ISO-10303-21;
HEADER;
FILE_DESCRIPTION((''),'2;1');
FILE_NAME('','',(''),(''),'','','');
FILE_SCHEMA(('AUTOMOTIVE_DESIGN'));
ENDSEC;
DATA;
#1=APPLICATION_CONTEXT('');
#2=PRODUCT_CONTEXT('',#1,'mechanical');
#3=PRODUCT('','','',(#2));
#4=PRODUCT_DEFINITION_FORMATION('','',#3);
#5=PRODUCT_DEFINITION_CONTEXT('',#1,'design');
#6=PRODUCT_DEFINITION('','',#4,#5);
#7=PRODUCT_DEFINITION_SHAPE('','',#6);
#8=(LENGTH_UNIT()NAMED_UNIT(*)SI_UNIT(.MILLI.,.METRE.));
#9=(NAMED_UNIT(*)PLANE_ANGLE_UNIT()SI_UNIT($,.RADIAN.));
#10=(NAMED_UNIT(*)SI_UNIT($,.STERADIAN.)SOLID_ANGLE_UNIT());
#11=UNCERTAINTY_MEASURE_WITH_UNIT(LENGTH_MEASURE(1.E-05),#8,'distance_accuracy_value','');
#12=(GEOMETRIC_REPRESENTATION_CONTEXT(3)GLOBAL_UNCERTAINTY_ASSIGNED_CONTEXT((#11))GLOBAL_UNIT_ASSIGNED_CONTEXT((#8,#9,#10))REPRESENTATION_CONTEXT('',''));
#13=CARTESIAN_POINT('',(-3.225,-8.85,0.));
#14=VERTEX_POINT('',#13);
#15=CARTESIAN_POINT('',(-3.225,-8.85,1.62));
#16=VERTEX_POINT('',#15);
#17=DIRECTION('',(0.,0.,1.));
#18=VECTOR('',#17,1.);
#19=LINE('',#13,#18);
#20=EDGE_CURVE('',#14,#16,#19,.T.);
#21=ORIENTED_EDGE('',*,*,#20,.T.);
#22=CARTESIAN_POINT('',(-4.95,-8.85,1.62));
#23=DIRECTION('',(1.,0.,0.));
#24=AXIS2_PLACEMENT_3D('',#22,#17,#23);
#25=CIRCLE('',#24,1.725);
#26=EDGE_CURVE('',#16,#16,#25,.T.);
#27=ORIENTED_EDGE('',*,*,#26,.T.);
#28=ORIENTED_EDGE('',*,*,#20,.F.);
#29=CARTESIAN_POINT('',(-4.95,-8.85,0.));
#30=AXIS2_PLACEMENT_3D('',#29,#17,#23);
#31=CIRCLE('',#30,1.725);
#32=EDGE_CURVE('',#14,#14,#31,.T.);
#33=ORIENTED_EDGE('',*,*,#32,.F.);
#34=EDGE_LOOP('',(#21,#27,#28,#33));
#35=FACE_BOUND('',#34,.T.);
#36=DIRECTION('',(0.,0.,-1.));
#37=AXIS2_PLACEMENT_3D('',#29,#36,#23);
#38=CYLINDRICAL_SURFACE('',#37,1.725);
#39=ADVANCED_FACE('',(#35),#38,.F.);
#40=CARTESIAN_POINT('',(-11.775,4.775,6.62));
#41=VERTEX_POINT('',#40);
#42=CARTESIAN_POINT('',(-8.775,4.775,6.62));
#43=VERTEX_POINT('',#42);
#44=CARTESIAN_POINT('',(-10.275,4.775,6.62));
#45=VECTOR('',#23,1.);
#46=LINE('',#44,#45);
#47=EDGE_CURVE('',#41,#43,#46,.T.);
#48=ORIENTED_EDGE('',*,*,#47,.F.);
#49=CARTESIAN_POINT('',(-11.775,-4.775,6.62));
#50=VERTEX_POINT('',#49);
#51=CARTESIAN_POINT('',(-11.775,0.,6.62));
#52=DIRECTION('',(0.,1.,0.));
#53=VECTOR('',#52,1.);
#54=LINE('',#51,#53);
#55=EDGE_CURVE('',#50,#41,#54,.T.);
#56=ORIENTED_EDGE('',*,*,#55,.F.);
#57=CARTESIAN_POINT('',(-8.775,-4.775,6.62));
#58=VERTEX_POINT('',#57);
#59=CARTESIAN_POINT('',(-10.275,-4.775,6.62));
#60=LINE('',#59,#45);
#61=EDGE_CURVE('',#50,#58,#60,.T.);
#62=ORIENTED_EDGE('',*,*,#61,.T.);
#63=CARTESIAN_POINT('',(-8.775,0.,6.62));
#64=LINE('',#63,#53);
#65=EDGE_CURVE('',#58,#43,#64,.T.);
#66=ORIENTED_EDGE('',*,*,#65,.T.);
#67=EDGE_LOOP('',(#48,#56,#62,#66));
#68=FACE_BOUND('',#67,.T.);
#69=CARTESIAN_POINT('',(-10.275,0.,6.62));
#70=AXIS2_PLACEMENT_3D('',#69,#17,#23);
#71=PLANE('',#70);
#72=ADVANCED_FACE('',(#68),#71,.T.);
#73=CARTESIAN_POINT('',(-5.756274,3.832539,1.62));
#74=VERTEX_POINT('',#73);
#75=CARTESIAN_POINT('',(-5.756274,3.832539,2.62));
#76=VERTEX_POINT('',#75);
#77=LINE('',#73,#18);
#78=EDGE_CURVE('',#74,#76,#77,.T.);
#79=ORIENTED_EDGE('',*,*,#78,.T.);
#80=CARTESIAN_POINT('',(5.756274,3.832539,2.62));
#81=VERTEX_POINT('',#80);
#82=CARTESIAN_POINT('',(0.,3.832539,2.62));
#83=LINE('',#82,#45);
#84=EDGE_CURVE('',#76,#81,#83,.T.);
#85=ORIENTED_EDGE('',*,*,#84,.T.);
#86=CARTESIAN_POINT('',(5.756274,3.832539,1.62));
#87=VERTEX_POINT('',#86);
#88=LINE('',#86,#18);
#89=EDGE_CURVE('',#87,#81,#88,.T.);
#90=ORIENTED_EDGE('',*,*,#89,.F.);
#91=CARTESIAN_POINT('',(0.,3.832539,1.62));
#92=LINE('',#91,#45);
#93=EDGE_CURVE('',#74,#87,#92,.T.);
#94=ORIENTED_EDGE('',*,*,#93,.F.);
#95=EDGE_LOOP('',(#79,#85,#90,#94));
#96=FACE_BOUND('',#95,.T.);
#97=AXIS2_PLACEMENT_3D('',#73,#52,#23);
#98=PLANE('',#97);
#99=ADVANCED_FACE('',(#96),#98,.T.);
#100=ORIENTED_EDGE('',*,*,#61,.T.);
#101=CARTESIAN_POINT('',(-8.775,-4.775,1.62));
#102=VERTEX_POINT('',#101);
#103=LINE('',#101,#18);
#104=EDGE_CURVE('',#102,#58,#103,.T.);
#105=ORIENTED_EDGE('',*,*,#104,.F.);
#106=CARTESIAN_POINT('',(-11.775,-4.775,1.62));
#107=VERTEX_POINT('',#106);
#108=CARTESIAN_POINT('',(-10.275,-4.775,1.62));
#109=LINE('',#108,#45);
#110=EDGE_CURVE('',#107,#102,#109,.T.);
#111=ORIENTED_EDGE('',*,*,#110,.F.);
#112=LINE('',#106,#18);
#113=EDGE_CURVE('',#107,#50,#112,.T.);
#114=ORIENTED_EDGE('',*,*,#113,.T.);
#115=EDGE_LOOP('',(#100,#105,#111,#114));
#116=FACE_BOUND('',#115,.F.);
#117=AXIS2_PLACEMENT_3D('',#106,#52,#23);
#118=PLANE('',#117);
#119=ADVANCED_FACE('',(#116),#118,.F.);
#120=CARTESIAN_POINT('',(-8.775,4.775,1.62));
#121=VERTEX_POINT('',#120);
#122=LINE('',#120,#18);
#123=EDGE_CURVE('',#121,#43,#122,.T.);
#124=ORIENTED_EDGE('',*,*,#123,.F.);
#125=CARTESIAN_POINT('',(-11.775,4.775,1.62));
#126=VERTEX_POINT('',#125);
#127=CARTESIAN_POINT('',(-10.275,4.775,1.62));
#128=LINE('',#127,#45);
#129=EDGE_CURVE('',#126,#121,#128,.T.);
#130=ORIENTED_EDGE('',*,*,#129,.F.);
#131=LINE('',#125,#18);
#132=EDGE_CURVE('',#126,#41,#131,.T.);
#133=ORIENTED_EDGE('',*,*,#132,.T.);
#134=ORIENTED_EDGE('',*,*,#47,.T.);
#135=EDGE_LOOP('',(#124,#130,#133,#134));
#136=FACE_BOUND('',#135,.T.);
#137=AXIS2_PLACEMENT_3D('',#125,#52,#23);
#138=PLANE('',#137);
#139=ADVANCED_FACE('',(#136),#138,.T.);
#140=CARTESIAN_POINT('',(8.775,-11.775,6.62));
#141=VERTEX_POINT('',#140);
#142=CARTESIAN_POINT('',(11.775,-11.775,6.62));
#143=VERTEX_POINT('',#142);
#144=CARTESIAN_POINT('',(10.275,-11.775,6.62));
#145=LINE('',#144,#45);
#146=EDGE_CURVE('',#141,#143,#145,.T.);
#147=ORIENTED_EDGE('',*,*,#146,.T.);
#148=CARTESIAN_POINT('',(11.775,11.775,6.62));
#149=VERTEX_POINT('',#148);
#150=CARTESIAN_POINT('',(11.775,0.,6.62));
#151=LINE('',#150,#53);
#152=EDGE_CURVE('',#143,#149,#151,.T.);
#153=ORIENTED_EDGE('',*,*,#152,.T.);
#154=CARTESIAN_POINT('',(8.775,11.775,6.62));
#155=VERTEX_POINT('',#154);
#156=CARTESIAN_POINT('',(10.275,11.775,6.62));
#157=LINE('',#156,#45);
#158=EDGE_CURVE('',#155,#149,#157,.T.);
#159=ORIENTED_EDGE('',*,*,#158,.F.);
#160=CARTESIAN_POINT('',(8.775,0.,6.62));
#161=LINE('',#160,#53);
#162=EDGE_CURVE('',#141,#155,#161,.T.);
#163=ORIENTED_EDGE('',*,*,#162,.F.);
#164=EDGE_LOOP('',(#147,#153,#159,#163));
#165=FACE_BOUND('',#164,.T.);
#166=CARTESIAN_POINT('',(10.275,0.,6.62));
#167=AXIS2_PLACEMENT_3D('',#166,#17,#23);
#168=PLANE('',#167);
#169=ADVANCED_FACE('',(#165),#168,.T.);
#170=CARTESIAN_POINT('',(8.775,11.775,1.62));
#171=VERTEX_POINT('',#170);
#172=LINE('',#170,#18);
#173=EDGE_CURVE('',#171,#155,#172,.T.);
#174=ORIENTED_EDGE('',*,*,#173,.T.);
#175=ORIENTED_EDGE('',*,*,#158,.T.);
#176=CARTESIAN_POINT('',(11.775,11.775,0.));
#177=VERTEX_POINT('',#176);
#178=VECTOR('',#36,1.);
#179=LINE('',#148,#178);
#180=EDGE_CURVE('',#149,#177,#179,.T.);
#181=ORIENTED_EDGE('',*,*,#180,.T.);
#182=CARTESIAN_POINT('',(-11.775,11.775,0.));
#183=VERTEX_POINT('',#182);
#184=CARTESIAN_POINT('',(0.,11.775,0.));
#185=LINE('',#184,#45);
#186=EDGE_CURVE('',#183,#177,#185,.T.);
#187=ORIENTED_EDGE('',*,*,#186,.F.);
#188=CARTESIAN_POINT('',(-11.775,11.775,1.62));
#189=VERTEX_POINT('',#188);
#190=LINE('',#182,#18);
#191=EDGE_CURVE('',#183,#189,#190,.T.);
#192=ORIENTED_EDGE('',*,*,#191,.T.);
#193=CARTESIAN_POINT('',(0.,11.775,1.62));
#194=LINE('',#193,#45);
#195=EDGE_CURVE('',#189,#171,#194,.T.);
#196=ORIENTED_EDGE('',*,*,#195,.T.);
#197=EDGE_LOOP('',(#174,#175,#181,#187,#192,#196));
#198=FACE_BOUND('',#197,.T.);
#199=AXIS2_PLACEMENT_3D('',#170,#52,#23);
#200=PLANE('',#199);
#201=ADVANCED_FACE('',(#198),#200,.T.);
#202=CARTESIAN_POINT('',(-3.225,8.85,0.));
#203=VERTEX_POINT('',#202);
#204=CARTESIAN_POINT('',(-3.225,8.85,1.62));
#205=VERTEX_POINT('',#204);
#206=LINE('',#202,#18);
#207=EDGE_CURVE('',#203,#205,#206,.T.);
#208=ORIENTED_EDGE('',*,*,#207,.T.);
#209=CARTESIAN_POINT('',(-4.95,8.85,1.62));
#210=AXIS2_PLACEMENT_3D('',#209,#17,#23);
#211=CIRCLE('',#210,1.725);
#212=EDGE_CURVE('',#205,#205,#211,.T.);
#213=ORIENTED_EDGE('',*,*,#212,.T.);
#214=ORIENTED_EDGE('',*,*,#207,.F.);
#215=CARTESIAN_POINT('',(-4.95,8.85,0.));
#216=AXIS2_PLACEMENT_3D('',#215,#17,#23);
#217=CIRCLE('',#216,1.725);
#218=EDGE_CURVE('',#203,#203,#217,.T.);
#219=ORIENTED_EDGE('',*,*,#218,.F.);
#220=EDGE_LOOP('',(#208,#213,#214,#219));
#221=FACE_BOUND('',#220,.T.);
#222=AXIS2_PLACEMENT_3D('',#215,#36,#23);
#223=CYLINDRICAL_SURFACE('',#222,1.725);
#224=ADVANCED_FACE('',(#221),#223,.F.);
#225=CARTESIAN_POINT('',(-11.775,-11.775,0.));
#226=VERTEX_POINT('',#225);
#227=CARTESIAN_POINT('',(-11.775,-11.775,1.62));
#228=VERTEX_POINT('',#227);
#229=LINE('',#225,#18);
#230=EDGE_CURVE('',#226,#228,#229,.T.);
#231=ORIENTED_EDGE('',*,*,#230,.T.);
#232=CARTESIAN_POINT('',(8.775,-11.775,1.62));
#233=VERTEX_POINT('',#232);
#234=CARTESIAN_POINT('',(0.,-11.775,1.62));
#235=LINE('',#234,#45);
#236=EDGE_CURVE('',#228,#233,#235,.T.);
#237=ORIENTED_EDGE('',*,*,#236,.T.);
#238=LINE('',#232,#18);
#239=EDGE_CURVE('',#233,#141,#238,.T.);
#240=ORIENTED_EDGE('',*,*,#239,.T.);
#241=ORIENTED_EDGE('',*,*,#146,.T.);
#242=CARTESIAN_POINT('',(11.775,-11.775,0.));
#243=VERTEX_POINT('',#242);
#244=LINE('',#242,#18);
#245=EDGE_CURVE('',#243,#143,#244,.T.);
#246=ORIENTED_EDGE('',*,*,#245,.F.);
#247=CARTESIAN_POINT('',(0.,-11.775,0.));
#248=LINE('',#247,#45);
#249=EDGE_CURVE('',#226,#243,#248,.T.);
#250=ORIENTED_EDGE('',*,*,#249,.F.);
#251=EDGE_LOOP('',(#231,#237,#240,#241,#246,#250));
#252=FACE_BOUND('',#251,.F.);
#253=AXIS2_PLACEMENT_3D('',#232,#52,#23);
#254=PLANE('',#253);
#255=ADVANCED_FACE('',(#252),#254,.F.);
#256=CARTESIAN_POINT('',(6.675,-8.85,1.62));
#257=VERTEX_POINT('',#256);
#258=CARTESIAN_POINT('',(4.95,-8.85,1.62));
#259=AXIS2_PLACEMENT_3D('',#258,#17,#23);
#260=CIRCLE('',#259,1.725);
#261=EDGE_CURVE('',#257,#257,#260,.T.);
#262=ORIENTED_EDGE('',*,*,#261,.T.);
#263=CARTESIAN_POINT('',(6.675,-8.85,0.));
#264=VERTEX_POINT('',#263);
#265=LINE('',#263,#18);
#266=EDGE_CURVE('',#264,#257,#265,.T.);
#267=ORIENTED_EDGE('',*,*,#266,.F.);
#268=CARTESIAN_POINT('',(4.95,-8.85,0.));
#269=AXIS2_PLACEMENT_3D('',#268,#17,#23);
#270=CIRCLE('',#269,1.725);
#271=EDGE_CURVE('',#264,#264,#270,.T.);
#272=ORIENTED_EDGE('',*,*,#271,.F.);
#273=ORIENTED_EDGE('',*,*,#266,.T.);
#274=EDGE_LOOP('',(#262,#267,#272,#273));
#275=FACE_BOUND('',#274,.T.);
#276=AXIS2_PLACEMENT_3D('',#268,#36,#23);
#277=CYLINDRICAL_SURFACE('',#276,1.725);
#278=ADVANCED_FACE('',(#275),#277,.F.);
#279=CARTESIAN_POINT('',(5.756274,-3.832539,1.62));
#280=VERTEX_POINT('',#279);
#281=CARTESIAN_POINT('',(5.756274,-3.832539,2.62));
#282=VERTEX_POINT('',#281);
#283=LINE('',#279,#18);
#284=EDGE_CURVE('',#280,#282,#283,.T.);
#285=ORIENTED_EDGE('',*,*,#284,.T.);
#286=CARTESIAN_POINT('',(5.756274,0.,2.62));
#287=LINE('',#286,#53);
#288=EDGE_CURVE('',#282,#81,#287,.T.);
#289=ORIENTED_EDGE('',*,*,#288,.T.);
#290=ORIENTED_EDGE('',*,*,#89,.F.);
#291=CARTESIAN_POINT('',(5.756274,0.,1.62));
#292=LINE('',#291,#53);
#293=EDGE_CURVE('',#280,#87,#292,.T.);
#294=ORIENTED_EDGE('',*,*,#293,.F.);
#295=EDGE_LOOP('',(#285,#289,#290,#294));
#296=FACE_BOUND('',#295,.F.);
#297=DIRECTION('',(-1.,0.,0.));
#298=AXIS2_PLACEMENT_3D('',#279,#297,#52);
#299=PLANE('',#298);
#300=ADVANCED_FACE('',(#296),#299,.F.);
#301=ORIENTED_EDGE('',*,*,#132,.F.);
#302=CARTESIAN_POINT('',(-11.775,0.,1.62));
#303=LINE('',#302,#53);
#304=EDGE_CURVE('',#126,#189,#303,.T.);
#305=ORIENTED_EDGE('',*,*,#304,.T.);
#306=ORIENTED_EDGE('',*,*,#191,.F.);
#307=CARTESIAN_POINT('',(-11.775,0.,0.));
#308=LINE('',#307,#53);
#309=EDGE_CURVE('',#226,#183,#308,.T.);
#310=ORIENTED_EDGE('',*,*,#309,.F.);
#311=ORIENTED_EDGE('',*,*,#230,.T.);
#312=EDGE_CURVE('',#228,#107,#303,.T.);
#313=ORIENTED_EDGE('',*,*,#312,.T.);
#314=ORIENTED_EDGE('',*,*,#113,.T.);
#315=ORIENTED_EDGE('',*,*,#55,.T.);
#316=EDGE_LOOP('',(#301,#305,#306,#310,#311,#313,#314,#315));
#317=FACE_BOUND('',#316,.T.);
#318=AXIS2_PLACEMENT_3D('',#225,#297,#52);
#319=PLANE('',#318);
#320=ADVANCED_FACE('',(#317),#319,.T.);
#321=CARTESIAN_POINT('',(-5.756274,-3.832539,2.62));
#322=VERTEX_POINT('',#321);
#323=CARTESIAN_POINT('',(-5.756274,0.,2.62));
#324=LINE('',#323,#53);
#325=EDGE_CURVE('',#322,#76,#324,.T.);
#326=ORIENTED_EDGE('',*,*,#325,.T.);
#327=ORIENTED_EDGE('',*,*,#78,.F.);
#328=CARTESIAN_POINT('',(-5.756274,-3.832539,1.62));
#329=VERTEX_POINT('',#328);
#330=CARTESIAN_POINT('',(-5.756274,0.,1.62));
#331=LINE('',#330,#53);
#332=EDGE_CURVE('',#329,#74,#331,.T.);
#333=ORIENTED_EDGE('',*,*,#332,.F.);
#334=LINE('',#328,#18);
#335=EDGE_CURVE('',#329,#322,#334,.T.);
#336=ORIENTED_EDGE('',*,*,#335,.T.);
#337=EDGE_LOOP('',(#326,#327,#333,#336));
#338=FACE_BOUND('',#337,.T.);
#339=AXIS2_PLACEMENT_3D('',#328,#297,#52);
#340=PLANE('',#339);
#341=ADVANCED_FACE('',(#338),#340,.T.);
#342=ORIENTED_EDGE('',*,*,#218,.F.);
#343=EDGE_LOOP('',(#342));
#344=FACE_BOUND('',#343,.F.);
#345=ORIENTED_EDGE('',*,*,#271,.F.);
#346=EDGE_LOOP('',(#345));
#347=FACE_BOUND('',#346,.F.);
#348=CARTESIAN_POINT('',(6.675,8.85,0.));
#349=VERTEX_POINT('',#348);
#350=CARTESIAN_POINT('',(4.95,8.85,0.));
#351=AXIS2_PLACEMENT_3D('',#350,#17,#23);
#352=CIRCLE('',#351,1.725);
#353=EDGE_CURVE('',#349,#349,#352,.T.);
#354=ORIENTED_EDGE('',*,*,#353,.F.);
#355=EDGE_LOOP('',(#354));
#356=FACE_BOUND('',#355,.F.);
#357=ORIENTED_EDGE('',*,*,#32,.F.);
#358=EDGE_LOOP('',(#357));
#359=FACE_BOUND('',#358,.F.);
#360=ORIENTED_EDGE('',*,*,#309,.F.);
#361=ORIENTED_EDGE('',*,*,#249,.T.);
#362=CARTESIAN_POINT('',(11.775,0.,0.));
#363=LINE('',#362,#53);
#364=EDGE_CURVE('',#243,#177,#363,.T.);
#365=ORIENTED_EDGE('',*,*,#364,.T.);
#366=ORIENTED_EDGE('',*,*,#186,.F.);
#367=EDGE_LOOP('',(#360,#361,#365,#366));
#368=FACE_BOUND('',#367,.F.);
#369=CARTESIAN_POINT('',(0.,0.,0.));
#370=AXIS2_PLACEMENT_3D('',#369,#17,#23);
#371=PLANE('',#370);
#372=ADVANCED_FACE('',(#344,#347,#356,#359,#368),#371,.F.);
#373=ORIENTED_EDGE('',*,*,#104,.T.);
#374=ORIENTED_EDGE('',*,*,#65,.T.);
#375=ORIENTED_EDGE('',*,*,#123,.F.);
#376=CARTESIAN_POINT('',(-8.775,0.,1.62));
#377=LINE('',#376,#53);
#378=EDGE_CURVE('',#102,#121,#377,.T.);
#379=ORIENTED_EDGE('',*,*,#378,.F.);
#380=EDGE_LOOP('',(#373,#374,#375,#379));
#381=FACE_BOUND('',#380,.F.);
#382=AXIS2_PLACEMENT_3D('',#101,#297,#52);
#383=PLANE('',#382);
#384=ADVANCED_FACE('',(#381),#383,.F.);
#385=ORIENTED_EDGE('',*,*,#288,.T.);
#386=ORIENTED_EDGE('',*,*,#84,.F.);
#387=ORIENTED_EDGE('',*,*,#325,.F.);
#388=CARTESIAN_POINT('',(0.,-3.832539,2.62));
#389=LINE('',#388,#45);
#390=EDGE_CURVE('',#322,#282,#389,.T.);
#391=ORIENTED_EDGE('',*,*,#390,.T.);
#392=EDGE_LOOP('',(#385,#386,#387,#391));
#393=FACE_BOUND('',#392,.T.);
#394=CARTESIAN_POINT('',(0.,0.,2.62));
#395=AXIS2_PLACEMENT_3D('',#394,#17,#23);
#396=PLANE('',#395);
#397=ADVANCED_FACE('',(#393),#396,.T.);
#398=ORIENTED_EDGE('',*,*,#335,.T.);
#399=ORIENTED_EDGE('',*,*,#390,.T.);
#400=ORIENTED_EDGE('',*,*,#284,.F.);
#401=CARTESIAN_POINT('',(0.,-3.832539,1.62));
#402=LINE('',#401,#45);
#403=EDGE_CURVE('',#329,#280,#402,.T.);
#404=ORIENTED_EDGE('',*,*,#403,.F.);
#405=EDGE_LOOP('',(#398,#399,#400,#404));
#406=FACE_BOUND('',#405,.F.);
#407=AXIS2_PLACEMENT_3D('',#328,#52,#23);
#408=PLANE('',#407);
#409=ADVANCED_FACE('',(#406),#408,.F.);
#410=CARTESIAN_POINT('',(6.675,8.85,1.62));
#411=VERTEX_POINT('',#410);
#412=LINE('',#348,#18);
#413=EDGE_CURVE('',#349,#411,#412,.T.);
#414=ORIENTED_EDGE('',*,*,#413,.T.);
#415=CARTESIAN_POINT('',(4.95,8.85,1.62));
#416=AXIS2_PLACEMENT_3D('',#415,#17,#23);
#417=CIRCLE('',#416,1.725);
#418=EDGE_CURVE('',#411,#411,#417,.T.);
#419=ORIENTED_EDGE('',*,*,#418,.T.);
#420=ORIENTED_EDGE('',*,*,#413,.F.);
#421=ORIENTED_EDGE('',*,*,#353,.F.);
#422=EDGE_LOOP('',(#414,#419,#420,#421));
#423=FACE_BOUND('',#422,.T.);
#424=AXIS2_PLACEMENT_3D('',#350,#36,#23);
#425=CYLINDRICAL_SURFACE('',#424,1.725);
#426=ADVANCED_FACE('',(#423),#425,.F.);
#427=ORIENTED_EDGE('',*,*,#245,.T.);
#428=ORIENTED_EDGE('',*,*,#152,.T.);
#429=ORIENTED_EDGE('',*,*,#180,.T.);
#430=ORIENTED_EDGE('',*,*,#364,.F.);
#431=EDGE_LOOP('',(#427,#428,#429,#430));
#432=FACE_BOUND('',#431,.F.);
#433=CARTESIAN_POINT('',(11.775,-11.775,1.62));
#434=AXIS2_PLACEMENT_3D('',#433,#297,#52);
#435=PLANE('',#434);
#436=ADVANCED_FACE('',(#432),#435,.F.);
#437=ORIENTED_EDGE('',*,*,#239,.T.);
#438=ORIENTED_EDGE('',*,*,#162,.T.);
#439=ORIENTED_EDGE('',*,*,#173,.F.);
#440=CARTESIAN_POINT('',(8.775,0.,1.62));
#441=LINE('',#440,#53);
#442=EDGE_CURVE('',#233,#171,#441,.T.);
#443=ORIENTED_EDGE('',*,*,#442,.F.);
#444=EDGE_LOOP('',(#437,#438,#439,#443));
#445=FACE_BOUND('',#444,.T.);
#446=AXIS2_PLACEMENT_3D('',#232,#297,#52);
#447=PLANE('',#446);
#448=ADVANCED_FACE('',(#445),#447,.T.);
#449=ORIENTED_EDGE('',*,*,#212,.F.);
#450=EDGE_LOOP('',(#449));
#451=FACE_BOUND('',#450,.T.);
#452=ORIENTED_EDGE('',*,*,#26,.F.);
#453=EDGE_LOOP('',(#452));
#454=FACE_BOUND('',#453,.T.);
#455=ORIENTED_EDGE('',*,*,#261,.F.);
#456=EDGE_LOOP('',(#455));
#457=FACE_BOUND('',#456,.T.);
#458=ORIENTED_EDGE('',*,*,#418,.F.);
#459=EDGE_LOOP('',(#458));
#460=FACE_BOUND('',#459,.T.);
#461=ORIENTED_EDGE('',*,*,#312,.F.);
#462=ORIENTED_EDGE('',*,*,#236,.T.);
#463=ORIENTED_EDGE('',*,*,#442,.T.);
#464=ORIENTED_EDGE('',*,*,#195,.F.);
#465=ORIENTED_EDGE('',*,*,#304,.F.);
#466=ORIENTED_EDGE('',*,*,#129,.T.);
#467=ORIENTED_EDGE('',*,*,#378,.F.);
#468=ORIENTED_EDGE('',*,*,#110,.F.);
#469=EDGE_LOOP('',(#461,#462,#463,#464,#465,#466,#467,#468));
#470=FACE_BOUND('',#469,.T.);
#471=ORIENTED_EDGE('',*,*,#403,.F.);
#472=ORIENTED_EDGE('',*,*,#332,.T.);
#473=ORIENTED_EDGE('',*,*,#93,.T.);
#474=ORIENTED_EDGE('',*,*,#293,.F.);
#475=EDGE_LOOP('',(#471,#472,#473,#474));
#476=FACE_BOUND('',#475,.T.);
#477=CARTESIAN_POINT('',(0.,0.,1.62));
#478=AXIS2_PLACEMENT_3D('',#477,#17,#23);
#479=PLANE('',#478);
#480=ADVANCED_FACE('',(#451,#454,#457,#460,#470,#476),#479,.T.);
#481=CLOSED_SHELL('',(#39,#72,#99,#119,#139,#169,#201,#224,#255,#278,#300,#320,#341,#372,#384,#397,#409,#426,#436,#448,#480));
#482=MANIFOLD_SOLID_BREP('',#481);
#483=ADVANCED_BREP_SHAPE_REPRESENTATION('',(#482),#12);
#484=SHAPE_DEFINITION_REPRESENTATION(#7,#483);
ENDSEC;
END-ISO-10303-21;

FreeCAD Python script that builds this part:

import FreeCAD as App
import Part
import Sketcher
from FreeCAD import Vector
Q = App.Units.Quantity


def add_polygon(sketch, points):
    """Adds a closed chain of lines whose ends are joined by coincident constraints."""
    first, n = sketch.GeometryCount, len(points)
    for a, b in zip(points, points[1:] + points[:1]):
        sketch.addGeometry(Part.LineSegment(App.Vector(*a, 0), App.Vector(*b, 0)), False)
    for i in range(n):
        sketch.addConstraint(Sketcher.Constraint("Coincident", first + i, 2, first + (i + 1) % n, 1))

doc = App.newDocument("Part")
body = doc.addObject("PartDesign::Body", "Body")

sketch1 = body.newObject("Sketcher::SketchObject", "Sketch")
sketch1.AttachmentSupport = (doc.getObject("XY_Plane"), [""])
sketch1.MapMode = "FlatFace"
add_polygon(sketch1, [(-11.8, 11.8), (-11.8, -11.8), (11.8, -11.8), (11.8, 11.8)])
sketch1.addGeometry(Part.Circle(Vector(-5, -8.8, 0), Vector(0, 0, 1), 1.7), False)
sketch1.addGeometry(Part.Circle(Vector(5, -8.8, 0), Vector(0, 0, 1), 1.7), False)
sketch1.addGeometry(Part.Circle(Vector(-5, 8.8, 0), Vector(0, 0, 1), 1.7), False)
sketch1.addGeometry(Part.Circle(Vector(5, 8.8, 0), Vector(0, 0, 1), 1.7), False)
sketch1.addConstraint([
    Sketcher.Constraint("Vertical", 0),
    Sketcher.Constraint("Horizontal", 1),
    Sketcher.Constraint("Vertical", 2),
    Sketcher.Constraint("Horizontal", 3),
    Sketcher.Constraint("Equal", 4, 5),
    Sketcher.Constraint("Equal", 5, 6),
    Sketcher.Constraint("Equal", 6, 7),
    Sketcher.Constraint("Symmetric", 5, 3, 6, 3, -1, 1),
    Sketcher.Constraint("Symmetric", 4, 3, 7, 3, -1, 1),
    Sketcher.Constraint("Symmetric", 0, 2, 2, 2, -1, 1),
    Sketcher.Constraint("Symmetric", 4, 3, 5, 3, -2),
    Sketcher.Constraint("Equal", 3, 0),
    Sketcher.Constraint("Diameter", 4, Q("3.45 mm")),
    Sketcher.Constraint("DistanceX", 1, 1, 1, 2, Q("23.55 mm")),
    Sketcher.Constraint("DistanceX", 4, 3, 5, 3, Q("9.9 mm")),
    Sketcher.Constraint("DistanceY", 4, 3, 6, 3, Q("17.7 mm")),
])
pad1 = body.newObject("PartDesign::Pad", "Pad")
pad1.Profile = sketch1
pad1.Length = 1.62

sketch2 = body.newObject("Sketcher::SketchObject", "Sketch001")
sketch2.AttachmentSupport = (doc.getObject("XY_Plane"), [""])
sketch2.MapMode = "FlatFace"
sketch2.AttachmentOffset = App.Placement(Vector(0, 0, 1.62), App.Rotation())
add_polygon(sketch2, [(8.8, 11.8), (8.8, -11.8), (11.8, -11.8), (11.8, 11.8)])
add_polygon(sketch2, [(-11.8, 4.8), (-11.8, -4.8), (-8.8, -4.8), (-8.8, 4.8)])
sketch2.addConstraint([
    Sketcher.Constraint("Vertical", 0),
    Sketcher.Constraint("Horizontal", 1),
    Sketcher.Constraint("Vertical", 2),
    Sketcher.Constraint("Horizontal", 3),
    Sketcher.Constraint("Vertical", 4),
    Sketcher.Constraint("Horizontal", 5),
    Sketcher.Constraint("Vertical", 6),
    Sketcher.Constraint("Horizontal", 7),
    Sketcher.Constraint("Equal", 3, 5),
    Sketcher.Constraint("DistanceX", 1, 1, 1, 2, Q("3 mm")),
    Sketcher.Constraint("DistanceY", 0, 2, 4, 2, Q("7 mm")),
    Sketcher.Constraint("DistanceY", 6, 2, 3, 2, Q("7 mm")),
    Sketcher.Constraint("DistanceY", 0, 2, 0, 1, Q("23.55 mm")),
    Sketcher.Constraint("DistanceX", 4, 2, 0, 2, Q("20.55 mm")),
    Sketcher.Constraint("DistanceX", -1, 1, 0, 2, Q("8.775 mm")),
    Sketcher.Constraint("DistanceY", 0, 2, -1, 1, Q("11.775 mm")),
])
pad2 = body.newObject("PartDesign::Pad", "Pad001")
pad2.Profile = sketch2
pad2.Length = 5

sketch3 = body.newObject("Sketcher::SketchObject", "Sketch002")
sketch3.AttachmentSupport = (doc.getObject("XY_Plane"), [""])
sketch3.MapMode = "FlatFace"
sketch3.AttachmentOffset = App.Placement(Vector(0, 0, 1.62), App.Rotation())
add_polygon(sketch3, [(-6, 4), (-6, -4), (6, -4), (6, 4)])
sketch3.addConstraint([
    Sketcher.Constraint("Vertical", 0),
    Sketcher.Constraint("Horizontal", 1),
    Sketcher.Constraint("Vertical", 2),
    Sketcher.Constraint("Horizontal", 3),
    Sketcher.Constraint("Symmetric", 0, 2, 2, 2, -1, 1),
    Sketcher.Constraint("DistanceX", 1, 1, 1, 2, Q("11.512548 mm")),
    Sketcher.Constraint("DistanceY", 0, 2, 0, 1, Q("7.665078 mm")),
])
pad3 = body.newObject("PartDesign::Pad", "Pad002")
pad3.Profile = sketch3
pad3.Length = 1

doc.recompute()
